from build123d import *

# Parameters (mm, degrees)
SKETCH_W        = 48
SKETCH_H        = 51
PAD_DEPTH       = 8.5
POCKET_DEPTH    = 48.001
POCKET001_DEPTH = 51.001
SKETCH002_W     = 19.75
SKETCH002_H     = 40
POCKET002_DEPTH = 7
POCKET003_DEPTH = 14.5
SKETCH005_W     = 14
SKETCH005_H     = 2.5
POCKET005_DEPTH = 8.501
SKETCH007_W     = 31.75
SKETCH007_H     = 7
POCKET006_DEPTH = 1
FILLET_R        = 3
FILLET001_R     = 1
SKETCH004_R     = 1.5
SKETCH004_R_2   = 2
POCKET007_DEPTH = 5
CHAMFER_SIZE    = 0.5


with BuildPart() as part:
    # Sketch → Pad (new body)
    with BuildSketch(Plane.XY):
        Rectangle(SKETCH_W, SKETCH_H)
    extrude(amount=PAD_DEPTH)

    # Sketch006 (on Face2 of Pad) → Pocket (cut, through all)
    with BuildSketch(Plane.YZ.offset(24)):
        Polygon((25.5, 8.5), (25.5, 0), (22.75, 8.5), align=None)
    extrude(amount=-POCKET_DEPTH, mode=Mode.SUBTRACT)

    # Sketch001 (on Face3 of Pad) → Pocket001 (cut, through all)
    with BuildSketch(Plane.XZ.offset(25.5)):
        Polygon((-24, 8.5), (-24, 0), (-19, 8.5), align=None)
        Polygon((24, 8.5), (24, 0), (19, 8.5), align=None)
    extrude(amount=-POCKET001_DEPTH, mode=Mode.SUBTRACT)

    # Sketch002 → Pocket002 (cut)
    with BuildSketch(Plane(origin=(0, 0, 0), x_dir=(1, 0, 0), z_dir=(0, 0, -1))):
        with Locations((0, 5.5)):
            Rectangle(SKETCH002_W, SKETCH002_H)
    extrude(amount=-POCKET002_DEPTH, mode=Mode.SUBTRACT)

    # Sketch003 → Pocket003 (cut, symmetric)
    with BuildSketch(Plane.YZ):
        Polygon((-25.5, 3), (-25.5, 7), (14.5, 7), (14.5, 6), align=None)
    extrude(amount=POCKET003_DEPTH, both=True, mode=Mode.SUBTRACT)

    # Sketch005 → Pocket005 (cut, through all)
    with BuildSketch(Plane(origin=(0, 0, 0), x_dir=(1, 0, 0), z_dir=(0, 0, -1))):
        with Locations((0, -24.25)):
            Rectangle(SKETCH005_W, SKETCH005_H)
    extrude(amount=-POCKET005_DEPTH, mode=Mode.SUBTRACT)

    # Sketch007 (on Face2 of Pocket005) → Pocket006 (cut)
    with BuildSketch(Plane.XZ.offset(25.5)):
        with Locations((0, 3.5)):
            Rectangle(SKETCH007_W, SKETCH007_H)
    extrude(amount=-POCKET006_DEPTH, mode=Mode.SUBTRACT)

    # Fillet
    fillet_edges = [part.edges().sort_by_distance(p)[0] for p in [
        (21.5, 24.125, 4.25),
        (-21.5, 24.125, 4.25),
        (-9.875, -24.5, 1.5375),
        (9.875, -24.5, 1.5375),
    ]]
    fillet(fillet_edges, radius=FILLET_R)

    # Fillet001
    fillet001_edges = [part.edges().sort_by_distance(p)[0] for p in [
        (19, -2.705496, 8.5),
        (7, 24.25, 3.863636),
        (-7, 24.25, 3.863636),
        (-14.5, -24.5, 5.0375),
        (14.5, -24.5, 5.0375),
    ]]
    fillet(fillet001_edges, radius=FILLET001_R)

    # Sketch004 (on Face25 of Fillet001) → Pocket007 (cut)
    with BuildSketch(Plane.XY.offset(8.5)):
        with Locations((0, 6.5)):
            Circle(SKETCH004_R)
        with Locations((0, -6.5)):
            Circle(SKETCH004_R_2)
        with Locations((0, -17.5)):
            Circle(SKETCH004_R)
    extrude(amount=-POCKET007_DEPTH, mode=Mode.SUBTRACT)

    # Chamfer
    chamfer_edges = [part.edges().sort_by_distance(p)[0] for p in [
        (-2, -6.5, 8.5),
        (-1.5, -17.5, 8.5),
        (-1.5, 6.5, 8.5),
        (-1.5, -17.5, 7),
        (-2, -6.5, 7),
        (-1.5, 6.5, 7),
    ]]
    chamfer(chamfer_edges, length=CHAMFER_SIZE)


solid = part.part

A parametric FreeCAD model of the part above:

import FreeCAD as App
import Part
import Sketcher

V = App.Vector
Q = App.Units.Quantity


def edges_at(feature, points):
    """Names of the edges that pass closest to the given points."""
    edges = feature.Shape.Edges
    near = lambda p: min(range(len(edges)), key=lambda i: edges[i].distToShape(Part.Vertex(*p))[0])
    return sorted({f"Edge{near(p) + 1}" for p in points})


def add_polygon(sketch, points):
    """Adds a closed chain of lines whose ends are joined by coincident constraints."""
    first, n = sketch.GeometryCount, len(points)
    for a, b in zip(points, points[1:] + points[:1]):
        sketch.addGeometry(Part.LineSegment(App.Vector(*a, 0), App.Vector(*b, 0)), False)
    for i in range(n):
        sketch.addConstraint(Sketcher.Constraint("Coincident", first + i, 2, first + (i + 1) % n, 1))

doc = App.newDocument("Part")
body = doc.addObject("PartDesign::Body", "Body")

sketch1 = body.newObject("Sketcher::SketchObject", "Sketch")
sketch1.AttachmentSupport = (doc.getObject("XY_Plane"), [""])
sketch1.MapMode = "FlatFace"
add_polygon(sketch1, [(-24, 25.5), (-24, -25.5), (24, -25.5), (24, 25.5)])
sketch1.addConstraint([
    Sketcher.Constraint("Vertical", 0),
    Sketcher.Constraint("Horizontal", 1),
    Sketcher.Constraint("Vertical", 2),
    Sketcher.Constraint("Horizontal", 3),
    Sketcher.Constraint("Symmetric", 0, 2, 2, 2, -1, 1),
    Sketcher.Constraint("DistanceX", 1, 1, 1, 2, Q("48 mm")),
    Sketcher.Constraint("DistanceY", 0, 2, 0, 1, Q("51 mm")),
])
pad1 = body.newObject("PartDesign::Pad", "Pad")
pad1.Profile = sketch1
pad1.Length = 8.5

sketch2 = body.newObject("Sketcher::SketchObject", "Sketch001")
sketch2.AttachmentSupport = (doc.getObject("YZ_Plane"), [""])
sketch2.MapMode = "FlatFace"
sketch2.AttachmentOffset = App.Placement(V(0, 0, 24), App.Rotation())
add_polygon(sketch2, [(25.5, 0), (25.5, 8.5), (22.75, 8.5)])
sketch2.addConstraint([
    Sketcher.Constraint("Vertical", 0),
    Sketcher.Constraint("Horizontal", 1),
    Sketcher.Constraint("PointOnObject", 2, 2, -1),
    Sketcher.Constraint("DistanceY", 0, 1, 0, 2, Q("8.5 mm")),
    Sketcher.Constraint("DistanceX", 1, 2, 1, 1, Q("2.75 mm")),
    Sketcher.Constraint("DistanceX", -1, 1, 0, 2, Q("25.5 mm")),
])
pocket1 = body.newObject("PartDesign::Pocket", "Pocket")
pocket1.Profile = sketch2
pocket1.Type = "ThroughAll"

sketch3 = body.newObject("Sketcher::SketchObject", "Sketch002")
sketch3.AttachmentSupport = (doc.getObject("XZ_Plane"), [""])
sketch3.MapMode = "FlatFace"
sketch3.AttachmentOffset = App.Placement(V(0, 0, 25.5), App.Rotation())
add_polygon(sketch3, [(-24, 8.5), (-24, 0), (-19, 8.5)])
add_polygon(sketch3, [(24, 0), (24, 8.5), (19, 8.5)])
sketch3.addConstraint([
    Sketcher.Constraint("Vertical", 0),
    Sketcher.Constraint("Horizontal", 2),
    Sketcher.Constraint("Vertical", 3),
    Sketcher.Constraint("Horizontal", 4),
    Sketcher.Constraint("Symmetric", 0, 2, 5, 2, -1, 1),
    Sketcher.Constraint("Symmetric", 1, 2, 4, 2, -2),
    Sketcher.Constraint("PointOnObject", 0, 2, -1),
    Sketcher.Constraint("DistanceX", 2, 2, 2, 1, Q("5 mm")),
    Sketcher.Constraint("DistanceY", 0, 2, 0, 1, Q("8.5 mm")),
    Sketcher.Constraint("DistanceX", 0, 2, -1, 1, Q("24 mm")),
])
pocket2 = body.newObject("PartDesign::Pocket", "Pocket001")
pocket2.Profile = sketch3
pocket2.Type = "ThroughAll"

sketch4 = body.newObject("Sketcher::SketchObject", "Sketch003")
sketch4.AttachmentSupport = (doc.getObject("XY_Plane"), [""])
sketch4.MapMode = "FlatFace"
add_polygon(sketch4, [(-9.875, -25.5), (-9.875, 14.5), (9.875, 14.5), (9.875, -25.5)])
sketch4.addConstraint([
    Sketcher.Constraint("Vertical", 0),
    Sketcher.Constraint("Horizontal", 1),
    Sketcher.Constraint("Vertical", 2),
    Sketcher.Constraint("Horizontal", 3),
    Sketcher.Constraint("DistanceY", 0, 1, 0, 2, Q("40 mm")),
    Sketcher.Constraint("DistanceX", 1, 1, 1, 2, Q("19.75 mm")),
    Sketcher.Constraint("DistanceY", -1, 1, 0, 2, Q("14.5 mm")),
    Sketcher.Constraint("DistanceX", 0, 2, -1, 1, Q("9.875 mm")),
])
pocket3 = body.newObject("PartDesign::Pocket", "Pocket002")
pocket3.Profile = sketch4
pocket3.Length = 7
pocket3.Reversed = True

sketch5 = body.newObject("Sketcher::SketchObject", "Sketch004")
sketch5.AttachmentSupport = (doc.getObject("YZ_Plane"), [""])
sketch5.MapMode = "FlatFace"
add_polygon(sketch5, [(-25.5, 7), (-25.5, 3), (14.5, 6), (14.5, 7)])
sketch5.addConstraint([
    Sketcher.Constraint("Vertical", 0),
    Sketcher.Constraint("Vertical", 2),
    Sketcher.Constraint("Horizontal", 3),
    Sketcher.Constraint("DistanceX", 3, 2, 3, 1, Q("40 mm")),
    Sketcher.Constraint("DistanceY", 0, 2, 0, 1, Q("4 mm")),
    Sketcher.Constraint("DistanceY", 2, 1, 2, 2, Q("1 mm")),
    Sketcher.Constraint("DistanceY", -1, 1, 0, 2, Q("3 mm")),
    Sketcher.Constraint("DistanceX", 0, 2, -1, 1, Q("25.5 mm")),
])
pocket4 = body.newObject("PartDesign::Pocket", "Pocket003")
pocket4.Profile = sketch5
pocket4.Length = 29
pocket4.Midplane = True

sketch6 = body.newObject("Sketcher::SketchObject", "Sketch005")
sketch6.AttachmentSupport = (doc.getObject("XY_Plane"), [""])
sketch6.MapMode = "FlatFace"
add_polygon(sketch6, [(-7, 23), (-7, 25.5), (7, 25.5), (7, 23)])
sketch6.addConstraint([
    Sketcher.Constraint("Vertical", 0),
    Sketcher.Constraint("Horizontal", 1),
    Sketcher.Constraint("Vertical", 2),
    Sketcher.Constraint("Horizontal", 3),
    Sketcher.Constraint("DistanceX", 1, 1, 1, 2, Q("14 mm")),
    Sketcher.Constraint("DistanceY", 0, 1, 0, 2, Q("2.5 mm")),
    Sketcher.Constraint("DistanceX", 0, 2, -1, 1, Q("7 mm")),
    Sketcher.Constraint("DistanceY", -1, 1, 2, 2, Q("23 mm")),
])
pocket5 = body.newObject("PartDesign::Pocket", "Pocket004")
pocket5.Profile = sketch6
pocket5.Type = "ThroughAll"
pocket5.Reversed = True

sketch7 = body.newObject("Sketcher::SketchObject", "Sketch006")
sketch7.AttachmentSupport = (doc.getObject("XZ_Plane"), [""])
sketch7.MapMode = "FlatFace"
sketch7.AttachmentOffset = App.Placement(V(0, 0, 25.5), App.Rotation())
add_polygon(sketch7, [(-15.875, 7), (-15.875, 0), (15.875, 0), (15.875, 7)])
sketch7.addConstraint([
    Sketcher.Constraint("Vertical", 0),
    Sketcher.Constraint("Horizontal", 1),
    Sketcher.Constraint("Vertical", 2),
    Sketcher.Constraint("Horizontal", 3),
    Sketcher.Constraint("Symmetric", 0, 2, 1, 2, -1, 1),
    Sketcher.Constraint("DistanceY", 0, 2, 0, 1, Q("7 mm")),
    Sketcher.Constraint("DistanceX", 1, 1, 1, 2, Q("31.75 mm")),
])
pocket6 = body.newObject("PartDesign::Pocket", "Pocket005")
pocket6.Profile = sketch7
pocket6.Length = 1
doc.recompute()

fillet = body.newObject("PartDesign::Fillet", "Fillet")
fillet.Base = (pocket6, edges_at(pocket6, [
    (21.5, 24.125, 4.25),
    (-21.5, 24.125, 4.25),
    (-9.875, -24.5, 1.538),
    (9.875, -24.5, 1.538),
]))
fillet.Radius = 3
doc.recompute()

fillet2 = body.newObject("PartDesign::Fillet", "Fillet001")
fillet2.Base = (fillet, edges_at(fillet, [
    (19, -2.705, 8.5),
    (7, 24.25, 3.864),
    (-7, 24.25, 3.864),
    (-14.5, -24.5, 5.037),
    (14.5, -24.5, 5.037),
]))
fillet2.Radius = 1

sketch8 = body.newObject("Sketcher::SketchObject", "Sketch007")
sketch8.AttachmentSupport = (doc.getObject("XY_Plane"), [""])
sketch8.MapMode = "FlatFace"
sketch8.AttachmentOffset = App.Placement(V(0, 0, 8.5), App.Rotation())
sketch8.addGeometry([
    Part.Circle(V(0, 6.5, 0), V(0, 0, 1), 1.5),
    Part.Circle(V(0, -6.5, 0), V(0, 0, 1), 2),
    Part.Circle(V(0, -17.5, 0), V(0, 0, 1), 1.5),
], False)
sketch8.addConstraint([
    Sketcher.Constraint("Equal", 0, 2),
    Sketcher.Constraint("Symmetric", 0, 3, 1, 3, -1, 1),
    Sketcher.Constraint("PointOnObject", 0, 3, -2),
    Sketcher.Constraint("PointOnObject", 2, 3, -2),
    Sketcher.Constraint("Diameter", 0, Q("3 mm")),
    Sketcher.Constraint("Diameter", 1, Q("4 mm")),
    Sketcher.Constraint("DistanceY", 1, 3, 0, 3, Q("13 mm")),
    Sketcher.Constraint("DistanceY", 2, 3, 1, 3, Q("11 mm")),
])
pocket7 = body.newObject("PartDesign::Pocket", "Pocket006")
pocket7.Profile = sketch8
pocket7.Length = 5
doc.recompute()

chamfer = body.newObject("PartDesign::Chamfer", "Chamfer")
chamfer.Base = (pocket7, edges_at(pocket7, [
    (-2, -6.5, 8.5),
    (-1.5, -17.5, 8.5),
    (-1.5, 6.5, 8.5),
    (-1.5, -17.5, 7),
    (-2, -6.5, 7),
    (-1.5, 6.5, 7),
]))
chamfer.Size = 0.5

doc.recompute()
